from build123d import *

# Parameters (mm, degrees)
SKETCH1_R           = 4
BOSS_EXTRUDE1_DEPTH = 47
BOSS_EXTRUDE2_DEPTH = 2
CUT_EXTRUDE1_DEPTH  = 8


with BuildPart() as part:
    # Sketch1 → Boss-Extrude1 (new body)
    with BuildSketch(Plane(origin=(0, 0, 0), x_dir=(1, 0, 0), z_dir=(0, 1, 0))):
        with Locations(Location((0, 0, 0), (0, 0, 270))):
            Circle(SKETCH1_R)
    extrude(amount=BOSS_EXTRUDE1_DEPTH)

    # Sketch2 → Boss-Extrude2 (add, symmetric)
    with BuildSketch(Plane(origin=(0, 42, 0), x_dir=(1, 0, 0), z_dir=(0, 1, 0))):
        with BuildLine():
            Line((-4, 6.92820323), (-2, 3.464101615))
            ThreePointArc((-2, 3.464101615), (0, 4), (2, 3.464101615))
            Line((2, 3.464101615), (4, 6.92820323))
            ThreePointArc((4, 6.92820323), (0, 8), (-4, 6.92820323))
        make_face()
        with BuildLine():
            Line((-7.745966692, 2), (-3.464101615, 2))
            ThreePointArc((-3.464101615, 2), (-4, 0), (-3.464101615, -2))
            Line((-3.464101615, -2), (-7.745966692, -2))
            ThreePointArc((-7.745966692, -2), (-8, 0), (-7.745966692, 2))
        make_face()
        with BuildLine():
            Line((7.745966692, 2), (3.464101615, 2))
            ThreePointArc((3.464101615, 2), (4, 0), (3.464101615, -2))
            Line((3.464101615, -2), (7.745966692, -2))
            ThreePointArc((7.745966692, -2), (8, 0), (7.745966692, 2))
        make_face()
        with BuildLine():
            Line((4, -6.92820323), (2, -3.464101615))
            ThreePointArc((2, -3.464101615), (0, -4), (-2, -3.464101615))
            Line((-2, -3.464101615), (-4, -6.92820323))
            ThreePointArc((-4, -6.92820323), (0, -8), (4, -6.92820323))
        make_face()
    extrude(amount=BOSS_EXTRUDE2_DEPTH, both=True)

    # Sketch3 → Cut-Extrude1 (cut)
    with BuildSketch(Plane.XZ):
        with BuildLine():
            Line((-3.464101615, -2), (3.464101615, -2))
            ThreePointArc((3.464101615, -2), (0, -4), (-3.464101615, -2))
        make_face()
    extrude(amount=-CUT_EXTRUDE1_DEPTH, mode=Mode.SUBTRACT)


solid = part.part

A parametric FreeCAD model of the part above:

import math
import FreeCAD as App
import Part
import Sketcher
from FreeCAD import Vector
Q = App.Units.Quantity

doc = App.newDocument("Part")
body = doc.addObject("PartDesign::Body", "Body")

# Sketch on XZ plane
sketch1 = doc.addObject("Sketcher::SketchObject", "Sketch")
body.addObject(sketch1)
sketch1.AttachmentSupport = (doc.XZ_Plane, [""])
sketch1.MapMode = "FlatFace"
sketch1.addGeometry(Part.Circle(Vector(0, 0, 0), Vector(0, 0, 1), 4), False)
sketch1.addConstraint([
    Sketcher.Constraint("Coincident", 0, 3, -1, 1),
    Sketcher.Constraint("Diameter", 0, 8.0),
])
pad1 = doc.addObject("PartDesign::Pad", "Pad")
body.addObject(pad1)
pad1.Profile = sketch1
pad1.Length = 47
pad1.Reversed = True

# Sketch on XZ plane
sketch2 = doc.addObject("Sketcher::SketchObject", "Sketch001")
body.addObject(sketch2)
sketch2.AttachmentSupport = (doc.XZ_Plane, [""])
sketch2.MapMode = "FlatFace"
sketch2.AttachmentOffset = App.Placement(Vector(0, 0, -42), App.Rotation())
sketch2.addGeometry([
    Part.LineSegment(Vector(-4, -6.9, 0), Vector(-2, -3.5, 0)),  # 0
    Part.ArcOfCircle(Part.Circle(Vector(0, 0, 0), Vector(0, 0, 1), 4), math.radians(-120), math.radians(-60)),  # 1
    Part.LineSegment(Vector(2, -3.5, 0), Vector(4, -6.9, 0)),  # 2
    Part.ArcOfCircle(Part.Circle(Vector(0, 0, 0), Vector(0, 0, 1), 8), math.radians(-120), math.radians(-60)),  # 3
    Part.LineSegment(Vector(-3.5, -2, 0), Vector(-7.7, -2, 0)),  # 4
    Part.ArcOfCircle(Part.Circle(Vector(0, 0, 0), Vector(0, 0, 1), 8), math.radians(166), math.radians(194)),  # 5
    Part.LineSegment(Vector(-7.7, 2, 0), Vector(-3.5, 2, 0)),  # 6
    Part.ArcOfCircle(Part.Circle(Vector(0, 0, 0), Vector(0, 0, 1), 4), math.radians(150), math.radians(210)),  # 7
    Part.LineSegment(Vector(7.7, -2, 0), Vector(3.5, -2, 0)),  # 8
    Part.ArcOfCircle(Part.Circle(Vector(0, 0, 0), Vector(0, 0, 1), 4), math.radians(-30), math.radians(30)),  # 9
    Part.LineSegment(Vector(3.5, 2, 0), Vector(7.7, 2, 0)),  # 10
    Part.ArcOfCircle(Part.Circle(Vector(0, 0, 0), Vector(0, 0, 1), 8), math.radians(-14), math.radians(14)),  # 11
    Part.LineSegment(Vector(4, 6.9, 0), Vector(2, 3.5, 0)),  # 12
    Part.ArcOfCircle(Part.Circle(Vector(0, 0, 0), Vector(0, 0, 1), 4), math.radians(60), math.radians(120)),  # 13
    Part.LineSegment(Vector(-2, 3.5, 0), Vector(-4, 6.9, 0)),  # 14
    Part.ArcOfCircle(Part.Circle(Vector(0, 0, 0), Vector(0, 0, 1), 8), math.radians(60), math.radians(120)),  # 15
], False)
sketch2.addConstraint([
    Sketcher.Constraint("Coincident", 0, 2, 1, 1),
    Sketcher.Constraint("Coincident", 1, 2, 2, 1),
    Sketcher.Constraint("Coincident", 2, 2, 3, 2),
    Sketcher.Constraint("Coincident", 3, 1, 0, 1),
    Sketcher.Constraint("Coincident", 4, 2, 5, 2),
    Sketcher.Constraint("Coincident", 5, 1, 6, 1),
    Sketcher.Constraint("Coincident", 6, 2, 7, 1),
    Sketcher.Constraint("Coincident", 7, 2, 4, 1),
    Sketcher.Constraint("Coincident", 8, 2, 9, 1),
    Sketcher.Constraint("Coincident", 9, 2, 10, 1),
    Sketcher.Constraint("Coincident", 10, 2, 11, 2),
    Sketcher.Constraint("Coincident", 11, 1, 8, 1),
    Sketcher.Constraint("Coincident", 12, 2, 13, 1),
    Sketcher.Constraint("Coincident", 13, 2, 14, 1),
    Sketcher.Constraint("Coincident", 14, 2, 15, 2),
    Sketcher.Constraint("Coincident", 15, 1, 12, 1),
    Sketcher.Constraint("Horizontal", 4),
    Sketcher.Constraint("Horizontal", 6),
    Sketcher.Constraint("Horizontal", 8),
    Sketcher.Constraint("Horizontal", 10),
    Sketcher.Constraint("Coincident", 1, 3, -1, 1),
    Sketcher.Constraint("Coincident", 3, 3, -1, 1),
    Sketcher.Constraint("Coincident", 5, 3, -1, 1),
    Sketcher.Constraint("Coincident", 7, 3, -1, 1),
    Sketcher.Constraint("Coincident", 9, 3, -1, 1),
    Sketcher.Constraint("Coincident", 11, 3, -1, 1),
    Sketcher.Constraint("Coincident", 13, 3, -1, 1),
    Sketcher.Constraint("Coincident", 15, 3, -1, 1),
    Sketcher.Constraint("Equal", 3, 5),
    Sketcher.Constraint("Equal", 1, 7),
    Sketcher.Constraint("Equal", 7, 9),
    Sketcher.Constraint("Equal", 5, 11),
    Sketcher.Constraint("Equal", 9, 13),
    Sketcher.Constraint("Equal", 11, 15),
    Sketcher.Constraint("Parallel", 0, 12),
    Sketcher.Constraint("Parallel", 2, 14),
    Sketcher.Constraint("Horizontal", 0, 2, 1, 2),
    Sketcher.Constraint("Horizontal", 2, 2, 3, 1),
    Sketcher.Constraint("Horizontal", 7, 2, 8, 2),
    Sketcher.Constraint("Horizontal", 6, 2, 9, 2),
    Sketcher.Constraint("Horizontal", 12, 2, 13, 2),
    Sketcher.Constraint("Vertical", 4, 2, 5, 1),
    Sketcher.Constraint("Vertical", 1, 2, 12, 2),
    Sketcher.Constraint("Radius", 1, 4.0),
    Sketcher.Constraint("Radius", 3, 8.0),
    Sketcher.Constraint("Angle", 0, Q("60 deg")),
    Sketcher.Constraint("DistanceX", 0, 2, -1, 1, 2.0),
    Sketcher.Constraint("DistanceY", 4, 2, -1, 1, 2.0),
])
pad2 = doc.addObject("PartDesign::Pad", "Pad001")
body.addObject(pad2)
pad2.Profile = sketch2
pad2.Length = 4
pad2.Midplane = True

# Sketch on XZ plane
sketch3 = doc.addObject("Sketcher::SketchObject", "Sketch002")
body.addObject(sketch3)
sketch3.AttachmentSupport = (doc.XZ_Plane, [""])
sketch3.MapMode = "FlatFace"
sketch3.addGeometry([
    Part.LineSegment(Vector(3.5, -2, 0), Vector(-3.5, -2, 0)),
    Part.ArcOfCircle(Part.Circle(Vector(0, 0, 0), Vector(0, 0, 1), 4), math.radians(-150), math.radians(-30)),
], False)
sketch3.addConstraint([
    Sketcher.Constraint("Coincident", 0, 1, 1, 2),
    Sketcher.Constraint("Coincident", 1, 1, 0, 2),
    Sketcher.Constraint("Horizontal", 0),
    Sketcher.Constraint("Coincident", 1, 3, -1, 1),
    Sketcher.Constraint("Radius", 1, 4.0),
    Sketcher.Constraint("DistanceY", 0, 1, -1, 1, 2.0),
])
pocket1 = doc.addObject("PartDesign::Pocket", "Pocket")
body.addObject(pocket1)
pocket1.Profile = sketch3
pocket1.Length = 8

doc.recompute()
